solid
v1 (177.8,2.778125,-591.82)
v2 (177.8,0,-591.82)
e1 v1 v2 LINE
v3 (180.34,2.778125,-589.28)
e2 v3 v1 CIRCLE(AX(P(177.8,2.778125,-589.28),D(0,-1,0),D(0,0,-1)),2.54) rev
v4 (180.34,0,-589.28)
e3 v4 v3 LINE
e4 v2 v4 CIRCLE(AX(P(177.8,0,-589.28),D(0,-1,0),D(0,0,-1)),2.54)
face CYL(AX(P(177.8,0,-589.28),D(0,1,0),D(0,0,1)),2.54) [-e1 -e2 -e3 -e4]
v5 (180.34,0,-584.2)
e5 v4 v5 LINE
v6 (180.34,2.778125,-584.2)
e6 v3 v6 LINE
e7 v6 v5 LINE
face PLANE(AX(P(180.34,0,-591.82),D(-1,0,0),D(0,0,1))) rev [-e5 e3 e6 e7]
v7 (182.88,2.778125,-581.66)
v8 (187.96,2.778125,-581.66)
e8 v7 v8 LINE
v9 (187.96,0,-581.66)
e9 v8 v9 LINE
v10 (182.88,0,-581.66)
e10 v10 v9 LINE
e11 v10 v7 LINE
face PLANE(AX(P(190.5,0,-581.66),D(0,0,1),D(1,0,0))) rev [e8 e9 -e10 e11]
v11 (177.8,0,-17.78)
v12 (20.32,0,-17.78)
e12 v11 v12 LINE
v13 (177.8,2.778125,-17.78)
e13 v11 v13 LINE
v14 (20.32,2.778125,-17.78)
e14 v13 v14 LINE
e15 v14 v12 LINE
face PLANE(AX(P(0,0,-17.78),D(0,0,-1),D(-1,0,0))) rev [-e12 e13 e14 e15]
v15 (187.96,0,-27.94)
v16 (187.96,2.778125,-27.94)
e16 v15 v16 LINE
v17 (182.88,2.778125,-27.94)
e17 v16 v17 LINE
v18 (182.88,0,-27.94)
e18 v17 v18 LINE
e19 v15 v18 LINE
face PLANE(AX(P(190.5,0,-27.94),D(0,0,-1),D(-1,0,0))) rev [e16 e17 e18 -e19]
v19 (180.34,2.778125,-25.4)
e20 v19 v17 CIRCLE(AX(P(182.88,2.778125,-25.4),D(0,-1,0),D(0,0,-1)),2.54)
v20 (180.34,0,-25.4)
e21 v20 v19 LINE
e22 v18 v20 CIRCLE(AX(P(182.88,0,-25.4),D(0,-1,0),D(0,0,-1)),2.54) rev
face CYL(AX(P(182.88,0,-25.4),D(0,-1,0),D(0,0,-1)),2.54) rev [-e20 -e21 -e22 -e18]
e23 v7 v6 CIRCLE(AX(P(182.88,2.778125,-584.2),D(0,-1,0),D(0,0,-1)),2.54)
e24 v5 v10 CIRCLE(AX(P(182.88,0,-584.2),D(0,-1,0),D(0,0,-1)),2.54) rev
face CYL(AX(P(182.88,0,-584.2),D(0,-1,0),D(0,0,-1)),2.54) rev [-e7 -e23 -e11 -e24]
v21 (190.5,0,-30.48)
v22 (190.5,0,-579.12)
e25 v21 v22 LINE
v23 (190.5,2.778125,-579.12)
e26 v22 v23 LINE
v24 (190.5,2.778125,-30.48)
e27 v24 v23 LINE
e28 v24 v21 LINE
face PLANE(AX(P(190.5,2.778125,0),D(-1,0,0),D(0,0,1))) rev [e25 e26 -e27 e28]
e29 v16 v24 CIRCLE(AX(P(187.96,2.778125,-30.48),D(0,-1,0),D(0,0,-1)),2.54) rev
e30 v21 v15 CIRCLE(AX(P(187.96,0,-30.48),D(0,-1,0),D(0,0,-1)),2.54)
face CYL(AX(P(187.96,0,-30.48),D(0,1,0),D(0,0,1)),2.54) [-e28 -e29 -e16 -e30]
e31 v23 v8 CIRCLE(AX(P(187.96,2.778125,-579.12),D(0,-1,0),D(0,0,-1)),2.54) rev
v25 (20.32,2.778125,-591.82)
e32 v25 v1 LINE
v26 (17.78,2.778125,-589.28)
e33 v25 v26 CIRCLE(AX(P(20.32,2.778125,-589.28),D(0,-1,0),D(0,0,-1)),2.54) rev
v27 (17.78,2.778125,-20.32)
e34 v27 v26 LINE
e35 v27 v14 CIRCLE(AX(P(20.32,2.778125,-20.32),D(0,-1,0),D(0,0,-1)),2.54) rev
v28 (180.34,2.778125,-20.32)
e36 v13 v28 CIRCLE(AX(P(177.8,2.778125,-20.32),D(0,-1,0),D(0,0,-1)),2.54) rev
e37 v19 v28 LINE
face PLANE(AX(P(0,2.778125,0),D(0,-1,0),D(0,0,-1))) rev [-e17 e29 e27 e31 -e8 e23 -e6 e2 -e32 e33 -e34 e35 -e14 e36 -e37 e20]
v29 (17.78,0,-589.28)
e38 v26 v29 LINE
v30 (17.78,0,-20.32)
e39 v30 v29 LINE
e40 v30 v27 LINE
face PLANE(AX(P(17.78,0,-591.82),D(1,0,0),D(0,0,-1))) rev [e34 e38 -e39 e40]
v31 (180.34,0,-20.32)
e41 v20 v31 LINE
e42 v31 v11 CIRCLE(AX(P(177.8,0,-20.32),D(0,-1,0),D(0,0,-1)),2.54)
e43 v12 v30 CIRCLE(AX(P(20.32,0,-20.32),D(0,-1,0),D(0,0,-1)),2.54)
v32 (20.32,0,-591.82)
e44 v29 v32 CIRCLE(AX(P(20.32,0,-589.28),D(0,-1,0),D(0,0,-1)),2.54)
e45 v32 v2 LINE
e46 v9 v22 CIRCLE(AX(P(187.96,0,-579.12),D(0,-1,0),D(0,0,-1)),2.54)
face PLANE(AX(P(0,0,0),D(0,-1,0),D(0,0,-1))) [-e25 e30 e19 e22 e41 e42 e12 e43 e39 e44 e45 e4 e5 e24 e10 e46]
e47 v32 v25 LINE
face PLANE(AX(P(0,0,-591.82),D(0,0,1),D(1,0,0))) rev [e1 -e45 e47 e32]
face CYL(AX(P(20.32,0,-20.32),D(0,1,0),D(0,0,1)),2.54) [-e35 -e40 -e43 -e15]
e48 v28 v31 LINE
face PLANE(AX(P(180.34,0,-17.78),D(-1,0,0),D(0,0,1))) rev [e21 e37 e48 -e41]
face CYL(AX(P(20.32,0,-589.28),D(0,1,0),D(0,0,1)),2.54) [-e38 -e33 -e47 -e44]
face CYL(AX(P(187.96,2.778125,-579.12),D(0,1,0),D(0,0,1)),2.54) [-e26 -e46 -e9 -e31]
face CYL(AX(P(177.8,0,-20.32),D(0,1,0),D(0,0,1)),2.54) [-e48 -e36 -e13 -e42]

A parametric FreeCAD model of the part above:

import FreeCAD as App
import Part
import Sketcher
Q = App.Units.Quantity


def edges_at(feature, points):
    """Names of the edges that pass closest to the given points."""
    edges = feature.Shape.Edges
    near = lambda p: min(range(len(edges)), key=lambda i: edges[i].distToShape(Part.Vertex(*p))[0])
    return sorted({f"Edge{near(p) + 1}" for p in points})

doc = App.newDocument("Part")
body = doc.addObject("PartDesign::Body", "Body")

sketch1 = body.newObject("Sketcher::SketchObject", "Sketch")
sketch1.AttachmentSupport = (doc.getObject("XZ_Plane"), [""])
sketch1.MapMode = "FlatFace"
sketch1.addGeometry(Part.LineSegment(App.Vector(0, -610, 0), App.Vector(0, 0, 0)), False)
sketch1.addGeometry(Part.LineSegment(App.Vector(0, 0, 0), App.Vector(190, 0, 0)), False)
sketch1.addGeometry(Part.LineSegment(App.Vector(190, 0, 0), App.Vector(190, -610, 0)), False)
sketch1.addGeometry(Part.LineSegment(App.Vector(190, -610, 0), App.Vector(0, -610, 0)), False)
sketch1.addConstraint(Sketcher.Constraint("Coincident", 0, 2, 1, 1))
sketch1.addConstraint(Sketcher.Constraint("Coincident", 1, 2, 2, 1))
sketch1.addConstraint(Sketcher.Constraint("Coincident", 2, 2, 3, 1))
sketch1.addConstraint(Sketcher.Constraint("Coincident", 3, 2, 0, 1))
sketch1.addConstraint(Sketcher.Constraint("Vertical", 0))
sketch1.addConstraint(Sketcher.Constraint("Horizontal", 1))
sketch1.addConstraint(Sketcher.Constraint("Vertical", 2))
sketch1.addConstraint(Sketcher.Constraint("Horizontal", 3))
sketch1.addConstraint(Sketcher.Constraint("Coincident", 0, 2, -1, 1))
sketch1.addConstraint(Sketcher.Constraint("DistanceY", 0, 1, 0, 2, Q("24 in")))
sketch1.addConstraint(Sketcher.Constraint("DistanceX", 1, 1, 1, 2, Q("7.5 in")))
pad1 = body.newObject("PartDesign::Pad", "Pad")
pad1.Profile = sketch1
pad1.Length = Q("0.109375 in")
pad1.Reversed = True

sketch2 = body.newObject("Sketcher::SketchObject", "Sketch001")
sketch2.AttachmentSupport = (doc.getObject("XZ_Plane"), [""])
sketch2.MapMode = "FlatFace"
sketch2.AttachmentOffset = App.Placement(App.Vector(0, 0, -0.109375 * 25.4), App.Rotation())
sketch2.addGeometry(Part.LineSegment(App.Vector(0, -18, 0), App.Vector(0, 0, 0)), False)
sketch2.addGeometry(Part.LineSegment(App.Vector(0, 0, 0), App.Vector(190, 0, 0)), False)
sketch2.addGeometry(Part.LineSegment(App.Vector(190, 0, 0), App.Vector(190, -18, 0)), False)
sketch2.addGeometry(Part.LineSegment(App.Vector(190, -18, 0), App.Vector(0, -18, 0)), False)
sketch2.addGeometry(Part.LineSegment(App.Vector(0, -610, 0), App.Vector(0, -592, 0)), False)
sketch2.addGeometry(Part.LineSegment(App.Vector(0, -592, 0), App.Vector(190, -592, 0)), False)
sketch2.addGeometry(Part.LineSegment(App.Vector(190, -592, 0), App.Vector(190, -610, 0)), False)
sketch2.addGeometry(Part.LineSegment(App.Vector(190, -610, 0), App.Vector(0, -610, 0)), False)
sketch2.addConstraint(Sketcher.Constraint("Coincident", 0, 2, 1, 1))
sketch2.addConstraint(Sketcher.Constraint("Coincident", 1, 2, 2, 1))
sketch2.addConstraint(Sketcher.Constraint("Coincident", 2, 2, 3, 1))
sketch2.addConstraint(Sketcher.Constraint("Coincident", 3, 2, 0, 1))
sketch2.addConstraint(Sketcher.Constraint("Coincident", 4, 2, 5, 1))
sketch2.addConstraint(Sketcher.Constraint("Coincident", 5, 2, 6, 1))
sketch2.addConstraint(Sketcher.Constraint("Coincident", 6, 2, 7, 1))
sketch2.addConstraint(Sketcher.Constraint("Coincident", 7, 2, 4, 1))
sketch2.addConstraint(Sketcher.Constraint("Vertical", 0))
sketch2.addConstraint(Sketcher.Constraint("Horizontal", 1))
sketch2.addConstraint(Sketcher.Constraint("Vertical", 2))
sketch2.addConstraint(Sketcher.Constraint("Horizontal", 3))
sketch2.addConstraint(Sketcher.Constraint("Vertical", 4))
sketch2.addConstraint(Sketcher.Constraint("Horizontal", 5))
sketch2.addConstraint(Sketcher.Constraint("Vertical", 6))
sketch2.addConstraint(Sketcher.Constraint("Horizontal", 7))
sketch2.addConstraint(Sketcher.Constraint("Coincident", 0, 2, -1, 1))
sketch2.addConstraint(Sketcher.Constraint("PointOnObject", 4, 2, -2))
sketch2.addConstraint(Sketcher.Constraint("Vertical", 2, 2, 5, 2))
sketch2.addConstraint(Sketcher.Constraint("Equal", 2, 4))
sketch2.addConstraint(Sketcher.Constraint("DistanceX", 1, 1, 1, 2, Q("7.5 in")))
sketch2.addConstraint(Sketcher.Constraint("DistanceY", 0, 1, 0, 2, Q("0.7 in")))
sketch2.addConstraint(Sketcher.Constraint("DistanceY", 6, 2, -1, 1, Q("24 in")))
pocket1 = body.newObject("PartDesign::Pocket", "Pocket")
pocket1.Profile = sketch2
pocket1.Type = "ThroughAll"
pocket1.Reversed = True

sketch3 = body.newObject("Sketcher::SketchObject", "Sketch002")
sketch3.AttachmentSupport = (doc.getObject("XZ_Plane"), [""])
sketch3.MapMode = "FlatFace"
sketch3.AttachmentOffset = App.Placement(App.Vector(0, 0, -0.109375 * 25.4), App.Rotation())
sketch3.addGeometry(Part.LineSegment(App.Vector(0, -592, 0), App.Vector(0, -18, 0)), False)
sketch3.addGeometry(Part.LineSegment(App.Vector(0, -18, 0), App.Vector(18, -18, 0)), False)
sketch3.addGeometry(Part.LineSegment(App.Vector(18, -18, 0), App.Vector(18, -592, 0)), False)
sketch3.addGeometry(Part.LineSegment(App.Vector(18, -592, 0), App.Vector(0, -592, 0)), False)
sketch3.addConstraint(Sketcher.Constraint("Coincident", 0, 2, 1, 1))
sketch3.addConstraint(Sketcher.Constraint("Coincident", 1, 2, 2, 1))
sketch3.addConstraint(Sketcher.Constraint("Coincident", 2, 2, 3, 1))
sketch3.addConstraint(Sketcher.Constraint("Coincident", 3, 2, 0, 1))
sketch3.addConstraint(Sketcher.Constraint("Vertical", 0))
sketch3.addConstraint(Sketcher.Constraint("Horizontal", 1))
sketch3.addConstraint(Sketcher.Constraint("Vertical", 2))
sketch3.addConstraint(Sketcher.Constraint("Horizontal", 3))
sketch3.addConstraint(Sketcher.Constraint("PointOnObject", 0, 2, -2))
sketch3.addConstraint(Sketcher.Constraint("DistanceX", 1, 1, 1, 2, Q("0.7 in")))
sketch3.addConstraint(Sketcher.Constraint("DistanceY", 0, 1, 0, 2, Q("22.6 in")))
sketch3.addConstraint(Sketcher.Constraint("DistanceY", 0, 2, -1, 1, Q("0.7 in")))
pocket2 = body.newObject("PartDesign::Pocket", "Pocket001")
pocket2.Profile = sketch3
pocket2.Type = "ThroughAll"
pocket2.Reversed = True

sketch4 = body.newObject("Sketcher::SketchObject", "Sketch003")
sketch4.AttachmentSupport = (doc.getObject("XZ_Plane"), [""])
sketch4.MapMode = "FlatFace"
sketch4.AttachmentOffset = App.Placement(App.Vector(0, 0, -0.109375 * 25.4), App.Rotation())
sketch4.addGeometry(Part.LineSegment(App.Vector(180, -592, 0), App.Vector(180, -582, 0)), False)
sketch4.addGeometry(Part.LineSegment(App.Vector(180, -582, 0), App.Vector(190, -582, 0)), False)
sketch4.addGeometry(Part.LineSegment(App.Vector(190, -582, 0), App.Vector(190, -592, 0)), False)
sketch4.addGeometry(Part.LineSegment(App.Vector(190, -592, 0), App.Vector(180, -592, 0)), False)
sketch4.addGeometry(Part.LineSegment(App.Vector(180, -28, 0), App.Vector(180, -18, 0)), False)
sketch4.addGeometry(Part.LineSegment(App.Vector(180, -18, 0), App.Vector(190, -18, 0)), False)
sketch4.addGeometry(Part.LineSegment(App.Vector(190, -18, 0), App.Vector(190, -28, 0)), False)
sketch4.addGeometry(Part.LineSegment(App.Vector(190, -28, 0), App.Vector(180, -28, 0)), False)
sketch4.addConstraint(Sketcher.Constraint("Coincident", 0, 2, 1, 1))
sketch4.addConstraint(Sketcher.Constraint("Coincident", 1, 2, 2, 1))
sketch4.addConstraint(Sketcher.Constraint("Coincident", 2, 2, 3, 1))
sketch4.addConstraint(Sketcher.Constraint("Coincident", 3, 2, 0, 1))
sketch4.addConstraint(Sketcher.Constraint("Coincident", 4, 2, 5, 1))
sketch4.addConstraint(Sketcher.Constraint("Coincident", 5, 2, 6, 1))
sketch4.addConstraint(Sketcher.Constraint("Coincident", 6, 2, 7, 1))
sketch4.addConstraint(Sketcher.Constraint("Coincident", 7, 2, 4, 1))
sketch4.addConstraint(Sketcher.Constraint("Vertical", 0))
sketch4.addConstraint(Sketcher.Constraint("Horizontal", 1))
sketch4.addConstraint(Sketcher.Constraint("Vertical", 2))
sketch4.addConstraint(Sketcher.Constraint("Horizontal", 3))
sketch4.addConstraint(Sketcher.Constraint("Vertical", 4))
sketch4.addConstraint(Sketcher.Constraint("Horizontal", 5))
sketch4.addConstraint(Sketcher.Constraint("Vertical", 6))
sketch4.addConstraint(Sketcher.Constraint("Horizontal", 7))
sketch4.addConstraint(Sketcher.Constraint("Vertical", 3, 2, 4, 2))
sketch4.addConstraint(Sketcher.Constraint("Vertical", 2, 2, 5, 2))
sketch4.addConstraint(Sketcher.Constraint("Equal", 7, 0))
sketch4.addConstraint(Sketcher.Constraint("Equal", 2, 4))
sketch4.addConstraint(Sketcher.Constraint("DistanceX", 1, 1, 1, 2, Q("0.4 in")))
sketch4.addConstraint(Sketcher.Constraint("DistanceX", -1, 1, 0, 2, Q("7.1 in")))
sketch4.addConstraint(Sketcher.Constraint("DistanceY", 0, 2, -1, 1, Q("22.9 in")))
sketch4.addConstraint(Sketcher.Constraint("DistanceY", 4, 2, -1, 1, Q("0.7 in")))
pocket3 = body.newObject("PartDesign::Pocket", "Pocket002")
pocket3.Profile = sketch4
pocket3.Type = "ThroughAll"
pocket3.Reversed = True
doc.recompute()

fillet = body.newObject("PartDesign::Fillet", "Fillet")
fillet.Base = (pocket3, edges_at(pocket3, [
    (17.78, 1.389, -591.82),
    (17.78, 1.389, -17.78),
    (190.5, 1.389, -581.66),
    (180.34, 1.389, -581.66),
    (180.34, 1.389, -591.82),
    (190.5, 1.389, -27.94),
    (180.34, 1.389, -17.78),
    (180.34, 1.389, -27.94),
]))
fillet.Radius = Q("0.1 in")

doc.recompute()
